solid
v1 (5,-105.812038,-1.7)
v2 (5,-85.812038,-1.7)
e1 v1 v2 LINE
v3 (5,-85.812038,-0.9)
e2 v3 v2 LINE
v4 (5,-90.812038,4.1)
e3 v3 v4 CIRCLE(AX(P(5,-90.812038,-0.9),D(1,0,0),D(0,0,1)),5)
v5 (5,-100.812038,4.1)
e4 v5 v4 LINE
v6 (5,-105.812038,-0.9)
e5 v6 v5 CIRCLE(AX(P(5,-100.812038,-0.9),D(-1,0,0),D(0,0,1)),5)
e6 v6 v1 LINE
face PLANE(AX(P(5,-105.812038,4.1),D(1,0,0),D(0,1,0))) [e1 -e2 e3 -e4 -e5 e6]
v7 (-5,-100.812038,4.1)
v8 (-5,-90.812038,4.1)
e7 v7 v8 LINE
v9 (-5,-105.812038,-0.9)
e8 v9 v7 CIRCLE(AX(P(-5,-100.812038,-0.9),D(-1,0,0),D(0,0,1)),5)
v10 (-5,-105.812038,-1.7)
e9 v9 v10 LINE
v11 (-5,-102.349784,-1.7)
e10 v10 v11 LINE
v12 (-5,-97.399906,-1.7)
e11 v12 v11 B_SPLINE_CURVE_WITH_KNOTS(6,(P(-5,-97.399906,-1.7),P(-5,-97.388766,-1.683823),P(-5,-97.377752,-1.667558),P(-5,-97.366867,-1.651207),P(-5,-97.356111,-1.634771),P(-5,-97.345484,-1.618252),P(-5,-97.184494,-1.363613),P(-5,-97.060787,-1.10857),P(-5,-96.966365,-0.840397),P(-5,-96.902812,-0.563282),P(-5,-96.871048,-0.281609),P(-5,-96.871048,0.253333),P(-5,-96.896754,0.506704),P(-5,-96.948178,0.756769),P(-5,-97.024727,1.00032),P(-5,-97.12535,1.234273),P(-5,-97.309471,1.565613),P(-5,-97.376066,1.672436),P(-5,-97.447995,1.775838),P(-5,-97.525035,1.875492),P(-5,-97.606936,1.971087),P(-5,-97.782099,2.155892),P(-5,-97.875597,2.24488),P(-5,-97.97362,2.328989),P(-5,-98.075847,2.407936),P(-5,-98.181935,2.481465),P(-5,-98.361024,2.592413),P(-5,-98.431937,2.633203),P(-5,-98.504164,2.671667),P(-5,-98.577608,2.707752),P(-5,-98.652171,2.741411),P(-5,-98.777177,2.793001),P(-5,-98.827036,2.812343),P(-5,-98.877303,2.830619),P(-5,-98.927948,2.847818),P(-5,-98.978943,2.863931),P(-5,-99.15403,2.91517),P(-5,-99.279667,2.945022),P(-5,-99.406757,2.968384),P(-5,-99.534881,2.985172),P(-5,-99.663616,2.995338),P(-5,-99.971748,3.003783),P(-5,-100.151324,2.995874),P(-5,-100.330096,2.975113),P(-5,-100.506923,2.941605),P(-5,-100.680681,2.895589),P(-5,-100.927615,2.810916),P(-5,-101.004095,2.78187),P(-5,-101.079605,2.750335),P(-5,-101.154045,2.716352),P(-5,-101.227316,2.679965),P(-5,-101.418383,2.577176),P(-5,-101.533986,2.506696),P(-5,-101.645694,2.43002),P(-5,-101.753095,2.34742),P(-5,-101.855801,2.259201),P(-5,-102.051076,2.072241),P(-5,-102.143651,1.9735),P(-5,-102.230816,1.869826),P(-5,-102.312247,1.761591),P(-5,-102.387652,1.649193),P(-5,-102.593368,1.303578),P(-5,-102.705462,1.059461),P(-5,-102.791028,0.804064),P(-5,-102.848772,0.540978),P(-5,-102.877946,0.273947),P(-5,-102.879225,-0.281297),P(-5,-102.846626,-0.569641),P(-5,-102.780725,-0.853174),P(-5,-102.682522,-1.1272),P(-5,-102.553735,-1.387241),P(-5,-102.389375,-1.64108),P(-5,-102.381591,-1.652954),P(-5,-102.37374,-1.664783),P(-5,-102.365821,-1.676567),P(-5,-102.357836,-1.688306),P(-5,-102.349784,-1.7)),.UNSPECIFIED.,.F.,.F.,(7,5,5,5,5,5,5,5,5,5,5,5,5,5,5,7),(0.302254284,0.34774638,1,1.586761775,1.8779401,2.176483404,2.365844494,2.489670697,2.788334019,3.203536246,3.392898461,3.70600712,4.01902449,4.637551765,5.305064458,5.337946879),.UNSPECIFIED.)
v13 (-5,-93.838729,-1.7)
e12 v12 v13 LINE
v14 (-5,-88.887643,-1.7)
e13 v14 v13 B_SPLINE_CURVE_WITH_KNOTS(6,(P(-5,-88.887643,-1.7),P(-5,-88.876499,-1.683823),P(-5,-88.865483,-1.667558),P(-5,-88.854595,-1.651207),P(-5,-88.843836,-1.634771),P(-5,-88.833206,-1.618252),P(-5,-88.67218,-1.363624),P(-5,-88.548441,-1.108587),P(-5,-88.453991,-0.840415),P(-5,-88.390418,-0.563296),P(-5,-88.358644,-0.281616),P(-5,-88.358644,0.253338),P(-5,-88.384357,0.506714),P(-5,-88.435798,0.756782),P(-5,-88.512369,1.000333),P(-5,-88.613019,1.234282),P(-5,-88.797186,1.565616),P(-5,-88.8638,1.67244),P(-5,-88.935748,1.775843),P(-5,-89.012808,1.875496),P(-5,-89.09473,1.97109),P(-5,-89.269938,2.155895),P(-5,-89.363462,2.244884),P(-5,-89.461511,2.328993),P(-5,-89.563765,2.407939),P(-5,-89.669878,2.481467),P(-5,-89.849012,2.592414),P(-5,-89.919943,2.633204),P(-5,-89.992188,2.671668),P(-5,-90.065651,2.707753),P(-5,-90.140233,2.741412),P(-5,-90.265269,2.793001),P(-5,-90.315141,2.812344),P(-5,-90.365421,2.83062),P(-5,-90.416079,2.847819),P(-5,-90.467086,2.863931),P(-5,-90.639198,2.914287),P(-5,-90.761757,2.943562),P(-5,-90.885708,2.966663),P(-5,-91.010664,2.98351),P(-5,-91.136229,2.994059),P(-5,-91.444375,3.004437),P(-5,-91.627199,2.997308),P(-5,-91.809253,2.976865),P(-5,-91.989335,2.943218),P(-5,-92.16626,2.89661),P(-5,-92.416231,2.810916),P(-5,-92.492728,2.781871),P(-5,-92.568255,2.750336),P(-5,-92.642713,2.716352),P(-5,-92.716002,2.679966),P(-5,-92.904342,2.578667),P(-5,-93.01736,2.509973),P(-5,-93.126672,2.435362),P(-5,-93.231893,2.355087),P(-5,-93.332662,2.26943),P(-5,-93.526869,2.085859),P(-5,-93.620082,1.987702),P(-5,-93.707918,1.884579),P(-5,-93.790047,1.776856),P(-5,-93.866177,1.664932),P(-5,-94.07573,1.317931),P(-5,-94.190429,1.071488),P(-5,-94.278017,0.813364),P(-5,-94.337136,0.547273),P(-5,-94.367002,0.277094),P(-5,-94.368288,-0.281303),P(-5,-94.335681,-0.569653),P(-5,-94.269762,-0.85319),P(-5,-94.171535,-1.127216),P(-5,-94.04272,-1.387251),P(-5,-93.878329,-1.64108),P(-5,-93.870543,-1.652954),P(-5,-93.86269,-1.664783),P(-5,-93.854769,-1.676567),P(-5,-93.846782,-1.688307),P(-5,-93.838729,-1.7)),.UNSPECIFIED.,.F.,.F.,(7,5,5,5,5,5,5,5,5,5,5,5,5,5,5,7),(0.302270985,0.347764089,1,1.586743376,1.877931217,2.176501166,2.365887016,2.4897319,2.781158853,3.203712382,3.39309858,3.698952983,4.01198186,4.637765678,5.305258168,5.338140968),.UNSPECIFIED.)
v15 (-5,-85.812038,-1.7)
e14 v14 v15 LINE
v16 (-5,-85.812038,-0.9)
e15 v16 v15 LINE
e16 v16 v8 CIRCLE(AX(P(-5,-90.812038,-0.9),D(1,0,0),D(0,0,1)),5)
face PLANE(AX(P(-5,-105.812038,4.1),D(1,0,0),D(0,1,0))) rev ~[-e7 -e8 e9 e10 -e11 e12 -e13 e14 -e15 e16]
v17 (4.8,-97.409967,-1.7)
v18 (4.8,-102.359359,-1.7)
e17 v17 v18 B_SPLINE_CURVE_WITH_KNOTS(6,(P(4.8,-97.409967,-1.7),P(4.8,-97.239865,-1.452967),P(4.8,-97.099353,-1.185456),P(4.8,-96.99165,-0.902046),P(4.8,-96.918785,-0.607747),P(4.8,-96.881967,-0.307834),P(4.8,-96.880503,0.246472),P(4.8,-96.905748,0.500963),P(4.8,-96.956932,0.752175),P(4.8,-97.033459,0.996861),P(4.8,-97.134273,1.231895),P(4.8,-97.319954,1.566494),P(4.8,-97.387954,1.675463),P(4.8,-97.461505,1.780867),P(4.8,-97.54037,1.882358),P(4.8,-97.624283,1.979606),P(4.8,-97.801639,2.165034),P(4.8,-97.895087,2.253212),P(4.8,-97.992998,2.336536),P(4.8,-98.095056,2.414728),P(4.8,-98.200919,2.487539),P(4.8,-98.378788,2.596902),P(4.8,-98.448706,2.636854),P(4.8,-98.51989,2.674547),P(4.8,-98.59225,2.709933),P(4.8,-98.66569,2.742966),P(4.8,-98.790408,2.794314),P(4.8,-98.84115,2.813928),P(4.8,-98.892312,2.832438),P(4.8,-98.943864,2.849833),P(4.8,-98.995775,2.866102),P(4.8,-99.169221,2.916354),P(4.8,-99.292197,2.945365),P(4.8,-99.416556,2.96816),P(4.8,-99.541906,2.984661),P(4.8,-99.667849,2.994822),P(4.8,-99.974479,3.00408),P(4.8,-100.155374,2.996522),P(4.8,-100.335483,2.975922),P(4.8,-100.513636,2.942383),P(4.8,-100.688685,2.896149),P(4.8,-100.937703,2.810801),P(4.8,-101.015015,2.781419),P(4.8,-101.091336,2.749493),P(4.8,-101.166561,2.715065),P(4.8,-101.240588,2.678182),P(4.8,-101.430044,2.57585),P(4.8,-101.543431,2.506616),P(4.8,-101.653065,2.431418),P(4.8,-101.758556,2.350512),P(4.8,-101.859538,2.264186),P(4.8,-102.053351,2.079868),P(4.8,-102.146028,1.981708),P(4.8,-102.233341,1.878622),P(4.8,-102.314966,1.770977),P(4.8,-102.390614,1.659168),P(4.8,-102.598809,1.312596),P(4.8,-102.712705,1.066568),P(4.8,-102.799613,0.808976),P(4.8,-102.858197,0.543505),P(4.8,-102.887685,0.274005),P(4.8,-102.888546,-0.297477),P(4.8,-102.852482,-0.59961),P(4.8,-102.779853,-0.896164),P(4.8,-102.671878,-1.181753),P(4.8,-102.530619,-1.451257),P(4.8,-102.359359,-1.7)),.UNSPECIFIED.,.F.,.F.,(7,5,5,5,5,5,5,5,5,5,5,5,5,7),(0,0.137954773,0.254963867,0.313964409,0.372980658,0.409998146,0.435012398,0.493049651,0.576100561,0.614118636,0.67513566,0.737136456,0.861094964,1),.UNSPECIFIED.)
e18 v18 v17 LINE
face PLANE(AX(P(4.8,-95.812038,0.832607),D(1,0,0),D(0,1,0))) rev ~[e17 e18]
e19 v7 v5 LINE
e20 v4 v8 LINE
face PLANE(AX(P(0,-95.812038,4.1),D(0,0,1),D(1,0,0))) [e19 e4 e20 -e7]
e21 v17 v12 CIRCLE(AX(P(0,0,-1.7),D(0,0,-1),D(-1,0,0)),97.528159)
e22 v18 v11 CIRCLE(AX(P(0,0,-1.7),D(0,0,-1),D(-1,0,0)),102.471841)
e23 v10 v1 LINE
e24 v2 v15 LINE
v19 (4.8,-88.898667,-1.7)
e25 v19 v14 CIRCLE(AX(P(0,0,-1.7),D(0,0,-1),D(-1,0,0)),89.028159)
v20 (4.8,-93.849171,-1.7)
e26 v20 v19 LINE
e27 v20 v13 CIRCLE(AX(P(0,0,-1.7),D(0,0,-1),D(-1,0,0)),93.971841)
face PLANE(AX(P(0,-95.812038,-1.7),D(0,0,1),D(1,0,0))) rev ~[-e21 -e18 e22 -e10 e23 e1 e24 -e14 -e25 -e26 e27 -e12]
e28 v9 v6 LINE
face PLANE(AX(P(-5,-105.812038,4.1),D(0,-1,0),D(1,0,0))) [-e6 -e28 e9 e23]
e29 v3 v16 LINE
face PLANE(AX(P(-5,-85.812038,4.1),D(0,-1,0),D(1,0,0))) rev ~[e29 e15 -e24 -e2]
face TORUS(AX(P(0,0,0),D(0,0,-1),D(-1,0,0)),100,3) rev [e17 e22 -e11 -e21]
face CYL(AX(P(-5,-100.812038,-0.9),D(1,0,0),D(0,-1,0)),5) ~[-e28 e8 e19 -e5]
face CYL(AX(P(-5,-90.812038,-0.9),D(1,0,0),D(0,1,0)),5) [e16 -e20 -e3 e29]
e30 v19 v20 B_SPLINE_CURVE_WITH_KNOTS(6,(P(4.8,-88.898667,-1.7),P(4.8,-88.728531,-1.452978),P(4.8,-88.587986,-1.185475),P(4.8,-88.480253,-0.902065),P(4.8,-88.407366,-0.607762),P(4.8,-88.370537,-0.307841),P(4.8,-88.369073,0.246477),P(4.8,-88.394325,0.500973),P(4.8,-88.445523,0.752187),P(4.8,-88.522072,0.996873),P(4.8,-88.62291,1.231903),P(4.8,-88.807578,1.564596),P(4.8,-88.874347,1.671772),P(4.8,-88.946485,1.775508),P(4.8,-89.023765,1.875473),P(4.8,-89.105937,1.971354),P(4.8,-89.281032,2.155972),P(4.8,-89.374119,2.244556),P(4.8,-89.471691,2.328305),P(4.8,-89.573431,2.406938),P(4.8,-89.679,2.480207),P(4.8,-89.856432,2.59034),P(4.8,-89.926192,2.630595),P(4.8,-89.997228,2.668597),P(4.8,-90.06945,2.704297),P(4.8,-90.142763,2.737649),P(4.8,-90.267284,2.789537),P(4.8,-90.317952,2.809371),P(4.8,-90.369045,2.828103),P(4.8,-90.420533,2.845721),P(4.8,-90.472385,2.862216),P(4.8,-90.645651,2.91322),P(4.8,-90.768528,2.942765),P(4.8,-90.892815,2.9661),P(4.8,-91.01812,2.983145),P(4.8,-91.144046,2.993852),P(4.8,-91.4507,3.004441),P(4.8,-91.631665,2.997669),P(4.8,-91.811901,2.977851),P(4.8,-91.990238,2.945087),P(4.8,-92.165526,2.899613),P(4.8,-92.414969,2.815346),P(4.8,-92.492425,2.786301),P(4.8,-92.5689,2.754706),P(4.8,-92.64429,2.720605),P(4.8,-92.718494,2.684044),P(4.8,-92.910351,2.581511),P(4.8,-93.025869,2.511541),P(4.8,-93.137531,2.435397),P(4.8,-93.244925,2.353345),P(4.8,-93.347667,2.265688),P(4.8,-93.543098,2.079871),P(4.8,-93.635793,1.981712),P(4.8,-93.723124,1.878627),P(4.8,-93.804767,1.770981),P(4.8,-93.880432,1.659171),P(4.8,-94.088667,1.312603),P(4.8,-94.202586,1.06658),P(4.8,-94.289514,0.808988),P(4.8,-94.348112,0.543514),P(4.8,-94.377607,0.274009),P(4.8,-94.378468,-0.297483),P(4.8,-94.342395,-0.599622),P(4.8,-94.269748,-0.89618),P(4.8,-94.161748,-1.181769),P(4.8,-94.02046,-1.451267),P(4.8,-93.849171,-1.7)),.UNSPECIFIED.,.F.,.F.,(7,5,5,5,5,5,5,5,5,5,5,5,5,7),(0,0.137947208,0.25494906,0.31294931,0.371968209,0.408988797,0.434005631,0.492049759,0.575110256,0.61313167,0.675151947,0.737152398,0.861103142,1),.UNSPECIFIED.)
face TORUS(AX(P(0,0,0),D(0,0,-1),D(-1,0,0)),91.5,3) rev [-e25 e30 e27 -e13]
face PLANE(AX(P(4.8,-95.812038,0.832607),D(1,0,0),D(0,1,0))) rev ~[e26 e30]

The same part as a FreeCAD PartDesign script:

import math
import FreeCAD as App
import Part
import Sketcher
from FreeCAD import Vector
Q = App.Units.Quantity


def edges_at(feature, points):
    """Names of the edges that pass closest to the given points."""
    edges = feature.Shape.Edges
    near = lambda p: min(range(len(edges)), key=lambda i: edges[i].distToShape(Part.Vertex(*p))[0])
    return sorted({f"Edge{near(p) + 1}" for p in points})

doc = App.newDocument("Part")
body = doc.addObject("PartDesign::Body", "Body")

# Sketch on XY plane
sketch1 = doc.addObject("Sketcher::SketchObject", "Sketch")
body.addObject(sketch1)
sketch1.AttachmentSupport = (doc.XY_Plane, [""])
sketch1.MapMode = "FlatFace"
sketch1.AttachmentOffset = App.Placement(Vector(0, 0, 4.1), App.Rotation())
sketch1.addGeometry(Part.LineSegment(Vector(-5, -86, 0), Vector(-5, -106, 0)), False)
sketch1.addGeometry(Part.LineSegment(Vector(-5, -106, 0), Vector(5, -106, 0)), False)
sketch1.addGeometry(Part.LineSegment(Vector(5, -106, 0), Vector(5, -86, 0)), False)
sketch1.addGeometry(Part.LineSegment(Vector(5, -86, 0), Vector(-5, -86, 0)), False)
sketch1.addConstraint(Sketcher.Constraint("Coincident", 0, 2, 1, 1))
sketch1.addConstraint(Sketcher.Constraint("Coincident", 1, 2, 2, 1))
sketch1.addConstraint(Sketcher.Constraint("Coincident", 2, 2, 3, 1))
sketch1.addConstraint(Sketcher.Constraint("Coincident", 3, 2, 0, 1))
sketch1.addConstraint(Sketcher.Constraint("Vertical", 0))
sketch1.addConstraint(Sketcher.Constraint("Horizontal", 1))
sketch1.addConstraint(Sketcher.Constraint("Vertical", 2))
sketch1.addConstraint(Sketcher.Constraint("Horizontal", 3))
sketch1.addConstraint(Sketcher.Constraint("DistanceX", 1, 1, 1, 2, Q("10 mm")))
sketch1.addConstraint(Sketcher.Constraint("DistanceY", 0, 2, 0, 1, Q("20 mm")))
sketch1.addConstraint(Sketcher.Constraint("DistanceX", 0, 2, -1, 1, Q("5 mm")))
sketch1.addConstraint(Sketcher.Constraint("DistanceY", 0, 2, -1, 1, Q("105.812038 mm")))
pad1 = doc.addObject("PartDesign::Pad", "Pad")
body.addObject(pad1)
pad1.Profile = sketch1
pad1.Length = 5.8
pad1.Reversed = True

# Sketch on XZ plane
sketch2 = doc.addObject("Sketcher::SketchObject", "Sketch001")
body.addObject(sketch2)
sketch2.AttachmentSupport = (doc.XZ_Plane, [""])
sketch2.MapMode = "FlatFace"
sketch2.addGeometry(Part.Circle(Vector(-91.5, 0, 0), Vector(0, 0, 1), 3), False)
sketch2.addConstraint(Sketcher.Constraint("PointOnObject", 0, 3, -1))
sketch2.addConstraint(Sketcher.Constraint("Diameter", 0, Q("6 mm")))
sketch2.addConstraint(Sketcher.Constraint("DistanceX", 0, 3, -1, 1, Q("91.5 mm")))
groove = doc.addObject("PartDesign::Groove", "Groove")
body.addObject(groove)
groove.Profile = sketch2
groove.ReferenceAxis = (sketch2, ["V_Axis"])
groove.Angle = 360

# Sketch on XZ plane
sketch3 = doc.addObject("Sketcher::SketchObject", "Sketch002")
body.addObject(sketch3)
sketch3.AttachmentSupport = (doc.XZ_Plane, [""])
sketch3.MapMode = "FlatFace"
sketch3.addGeometry(Part.Circle(Vector(-100, 0, 0), Vector(0, 0, 1), 3), False)
sketch3.addConstraint(Sketcher.Constraint("PointOnObject", 0, 3, -1))
sketch3.addConstraint(Sketcher.Constraint("Diameter", 0, Q("6 mm")))
sketch3.addConstraint(Sketcher.Constraint("DistanceX", 0, 3, -1, 1, Q("100 mm")))
groove2 = doc.addObject("PartDesign::Groove", "Groove001")
body.addObject(groove2)
groove2.Profile = sketch3
groove2.ReferenceAxis = (sketch3, ["V_Axis"])
groove2.Angle = 360
doc.recompute()

fillet = doc.addObject("PartDesign::Fillet", "Fillet")
body.addObject(fillet)
fillet.Base = (groove2, edges_at(groove2, [(0, -105.812, 4.1), (0, -85.812, 4.1)]))
fillet.Radius = 5

# Sketch on YZ plane
sketch4 = doc.addObject("Sketcher::SketchObject", "Sketch003")
body.addObject(sketch4)
sketch4.AttachmentSupport = (doc.YZ_Plane, [""])
sketch4.MapMode = "FlatFace"
sketch4.AttachmentOffset = App.Placement(Vector(0, 0, 5), App.Rotation())
sketch4.addGeometry(Part.LineSegment(Vector(-90.8, 4.1, 0), Vector(-100.8, 4.1, 0)), False)
sketch4.addGeometry(Part.ArcOfCircle(Part.Circle(Vector(-100.8, -0.9, 0), Vector(0, 0, 1), 5), math.radians(90), math.radians(180)), False)
sketch4.addGeometry(Part.LineSegment(Vector(-105.8, -0.9, 0), Vector(-105.8, -1.7, 0)), False)
sketch4.addGeometry(Part.LineSegment(Vector(-105.8, -1.7, 0), Vector(-85.8, -1.7, 0)), False)
sketch4.addGeometry(Part.LineSegment(Vector(-85.8, -1.7, 0), Vector(-85.8, -0.9, 0)), False)
sketch4.addGeometry(Part.ArcOfCircle(Part.Circle(Vector(-90.8, -0.9, 0), Vector(0, 0, 1), 5), math.radians(0), math.radians(90)), False)
sketch4.addConstraint(Sketcher.Constraint("Tangent", 0, 2, 1, 1))
sketch4.addConstraint(Sketcher.Constraint("Tangent", 1, 2, 2, 1))
sketch4.addConstraint(Sketcher.Constraint("Coincident", 2, 2, 3, 1))
sketch4.addConstraint(Sketcher.Constraint("Coincident", 3, 2, 4, 1))
sketch4.addConstraint(Sketcher.Constraint("Tangent", 4, 2, 5, 1))
sketch4.addConstraint(Sketcher.Constraint("Tangent", 5, 2, 0, 1))
sketch4.addConstraint(Sketcher.Constraint("Horizontal", 0))
sketch4.addConstraint(Sketcher.Constraint("Vertical", 2))
sketch4.addConstraint(Sketcher.Constraint("Horizontal", 3))
sketch4.addConstraint(Sketcher.Constraint("Vertical", 4))
sketch4.addConstraint(Sketcher.Constraint("Equal", 1, 5))
sketch4.addConstraint(Sketcher.Constraint("Radius", 1, Q("5 mm")))
sketch4.addConstraint(Sketcher.Constraint("DistanceX", 0, 2, 0, 1, Q("10 mm")))
sketch4.addConstraint(Sketcher.Constraint("DistanceY", 2, 2, 2, 1, Q("0.8 mm")))
sketch4.addConstraint(Sketcher.Constraint("DistanceY", 1, 3, -1, 1, Q("0.9 mm")))
sketch4.addConstraint(Sketcher.Constraint("DistanceX", 1, 3, -1, 1, Q("100.812038 mm")))
pad2 = doc.addObject("PartDesign::Pad", "Pad001")
body.addObject(pad2)
pad2.Profile = sketch4
pad2.Length = 0.2
pad2.Reversed = True

doc.recompute()
